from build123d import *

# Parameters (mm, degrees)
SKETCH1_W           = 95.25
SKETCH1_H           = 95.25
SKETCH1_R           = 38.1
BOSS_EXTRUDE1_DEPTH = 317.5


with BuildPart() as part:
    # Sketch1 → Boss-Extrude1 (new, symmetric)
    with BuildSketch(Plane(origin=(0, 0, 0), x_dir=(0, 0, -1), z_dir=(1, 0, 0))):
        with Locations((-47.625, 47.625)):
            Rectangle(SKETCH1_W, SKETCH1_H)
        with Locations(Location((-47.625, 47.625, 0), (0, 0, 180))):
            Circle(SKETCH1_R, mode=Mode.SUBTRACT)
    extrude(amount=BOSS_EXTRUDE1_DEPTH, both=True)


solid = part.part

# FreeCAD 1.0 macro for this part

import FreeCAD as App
import Part
import Sketcher

V = App.Vector
Q = App.Units.Quantity


def add_polygon(sketch, points):
    """Adds a closed chain of lines whose ends are joined by coincident constraints."""
    first, n = sketch.GeometryCount, len(points)
    for a, b in zip(points, points[1:] + points[:1]):
        sketch.addGeometry(Part.LineSegment(App.Vector(*a, 0), App.Vector(*b, 0)), False)
    for i in range(n):
        sketch.addConstraint(Sketcher.Constraint("Coincident", first + i, 2, first + (i + 1) % n, 1))

doc = App.newDocument("Part")
body = doc.addObject("PartDesign::Body", "Body")

sketch1 = doc.addObject("Sketcher::SketchObject", "Sketch")
body.addObject(sketch1)
sketch1.AttachmentSupport = (doc.YZ_Plane, [""])
sketch1.MapMode = "FlatFace"
add_polygon(sketch1, [(95, 95), (0, 95), (0, 0), (95, 0)])
sketch1.addGeometry(Part.Circle(V(48, 48, 0), V(0, 0, 1), 38), False)
sketch1.addConstraint([
    Sketcher.Constraint("Horizontal", 0),
    Sketcher.Constraint("Vertical", 1),
    Sketcher.Constraint("Horizontal", 2),
    Sketcher.Constraint("Vertical", 3),
    Sketcher.Constraint("Coincident", 1, 2, -1, 1),
    Sketcher.Constraint("Equal", 2, 1),
    Sketcher.Constraint("Diameter", 4, Q("3 in")),
    Sketcher.Constraint("DistanceX", 0, 2, 0, 1, Q("3.75 in")),
    Sketcher.Constraint("DistanceX", -1, 1, 4, 3, Q("1.875 in")),
    Sketcher.Constraint("DistanceY", -1, 1, 4, 3, Q("1.875 in")),
])
pad1 = doc.addObject("PartDesign::Pad", "Pad")
body.addObject(pad1)
pad1.Profile = sketch1
pad1.Length = Q("25 in")
pad1.Midplane = True

doc.recompute()
